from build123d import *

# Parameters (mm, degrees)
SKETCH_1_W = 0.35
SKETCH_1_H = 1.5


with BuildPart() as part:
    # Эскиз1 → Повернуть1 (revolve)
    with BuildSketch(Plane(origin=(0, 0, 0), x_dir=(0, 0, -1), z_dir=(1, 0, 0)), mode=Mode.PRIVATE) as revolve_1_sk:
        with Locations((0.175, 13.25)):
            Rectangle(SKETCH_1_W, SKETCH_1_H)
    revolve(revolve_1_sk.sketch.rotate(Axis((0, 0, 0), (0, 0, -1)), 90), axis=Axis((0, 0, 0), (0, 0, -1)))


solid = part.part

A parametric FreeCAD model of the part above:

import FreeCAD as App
import Part
import Sketcher
Q = App.Units.Quantity

doc = App.newDocument("Part")
body = doc.addObject("PartDesign::Body", "Body")

# Sketch on YZ plane
sketch1 = body.newObject("Sketcher::SketchObject", "Sketch")
sketch1.AttachmentSupport = (doc.getObject("YZ_Plane"), [""])
sketch1.MapMode = "FlatFace"
sketch1.addGeometry([
    Part.LineSegment(App.Vector(14, 0, 0), App.Vector(12.5, 0, 0)),
    Part.LineSegment(App.Vector(12.5, 0, 0), App.Vector(12.5, -0.35, 0)),
    Part.LineSegment(App.Vector(12.5, -0.35, 0), App.Vector(14, -0.35, 0)),
    Part.LineSegment(App.Vector(14, -0.35, 0), App.Vector(14, 0, 0)),
], False)
sketch1.addConstraint([
    Sketcher.Constraint("Coincident", 0, 2, 1, 1),
    Sketcher.Constraint("Coincident", 1, 2, 2, 1),
    Sketcher.Constraint("Coincident", 2, 2, 3, 1),
    Sketcher.Constraint("Coincident", 3, 2, 0, 1),
    Sketcher.Constraint("Horizontal", 0),
    Sketcher.Constraint("Vertical", 1),
    Sketcher.Constraint("Horizontal", 2),
    Sketcher.Constraint("Vertical", 3),
    Sketcher.Constraint("PointOnObject", 0, 2, -1),
    Sketcher.Constraint("DistanceX", 0, 2, 0, 1, Q("1.5 mm")),
    Sketcher.Constraint("DistanceX", -1, 1, 2, 2, Q("14 mm")),
    Sketcher.Constraint("DistanceY", 1, 2, 1, 1, Q("0.35 mm")),
])
revolution = body.newObject("PartDesign::Revolution", "Revolution")
revolution.Profile = sketch1
revolution.ReferenceAxis = (sketch1, ["V_Axis"])
revolution.Angle = 360

doc.recompute()
